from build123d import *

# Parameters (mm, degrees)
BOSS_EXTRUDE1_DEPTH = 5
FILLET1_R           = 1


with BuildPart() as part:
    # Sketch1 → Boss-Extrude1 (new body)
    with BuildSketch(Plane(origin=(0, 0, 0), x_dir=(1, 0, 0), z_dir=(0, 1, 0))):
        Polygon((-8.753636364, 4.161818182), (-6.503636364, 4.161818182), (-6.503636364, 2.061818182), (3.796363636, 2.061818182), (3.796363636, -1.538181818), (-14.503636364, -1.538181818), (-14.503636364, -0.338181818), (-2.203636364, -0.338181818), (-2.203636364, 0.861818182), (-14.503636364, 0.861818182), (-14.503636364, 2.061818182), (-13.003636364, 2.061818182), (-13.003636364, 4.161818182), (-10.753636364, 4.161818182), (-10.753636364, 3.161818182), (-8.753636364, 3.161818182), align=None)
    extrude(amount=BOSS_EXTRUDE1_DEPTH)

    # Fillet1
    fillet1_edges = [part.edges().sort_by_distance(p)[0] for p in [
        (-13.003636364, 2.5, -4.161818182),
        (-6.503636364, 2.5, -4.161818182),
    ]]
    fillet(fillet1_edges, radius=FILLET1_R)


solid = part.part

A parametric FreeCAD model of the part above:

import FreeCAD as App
import Part
import Sketcher
Q = App.Units.Quantity


def edges_at(feature, points):
    """Names of the edges that pass closest to the given points."""
    edges = feature.Shape.Edges
    near = lambda p: min(range(len(edges)), key=lambda i: edges[i].distToShape(Part.Vertex(*p))[0])
    return sorted({f"Edge{near(p) + 1}" for p in points})


def add_polygon(sketch, points):
    """Adds a closed chain of lines whose ends are joined by coincident constraints."""
    first, n = sketch.GeometryCount, len(points)
    for a, b in zip(points, points[1:] + points[:1]):
        sketch.addGeometry(Part.LineSegment(App.Vector(*a, 0), App.Vector(*b, 0)), False)
    for i in range(n):
        sketch.addConstraint(Sketcher.Constraint("Coincident", first + i, 2, first + (i + 1) % n, 1))

doc = App.newDocument("Part")
params = doc.addObject("Spreadsheet::Sheet", "Params")
for row, (alias, value) in enumerate([
    ("sketch1_width", "2 mm"),
    ("sketch1_height", "1 mm"),
    ("sketch1_width2", "1.5 mm"),
    ("sketch1_width3", "12.3 mm"),
    ("sketch1_width4", "18.3 mm"),
    ("pad1_length", "5 mm"),
    ("fillet_radius", "1 mm"),
], start=1):
    params.set(f"A{row}", alias)
    params.set(f"B{row}", "=" + value)
    params.setAlias(f"B{row}", alias)

body = doc.addObject("PartDesign::Body", "Body")

sketch1 = doc.addObject("Sketcher::SketchObject", "Sketch")
body.addObject(sketch1)
sketch1.AttachmentSupport = (doc.XZ_Plane, [""])
sketch1.MapMode = "FlatFace"
add_polygon(sketch1, [(-6.5, -4.2), (-8.8, -4.2), (-8.8, -3.2), (-10.8, -3.2), (-10.8, -4.2), (-13, -4.2), (-13, -2.1), (-14.5, -2.1), (-14.5, -0.9), (-2.2, -0.9), (-2.2, 0.3), (-14.5, 0.3), (-14.5, 1.5), (3.8, 1.5), (3.8, -2.1), (-6.5, -2.1)])
sketch1.addConstraint([
    Sketcher.Constraint("Horizontal", 0),
    Sketcher.Constraint("Vertical", 1),
    Sketcher.Constraint("Horizontal", 2),
    Sketcher.Constraint("Vertical", 3),
    Sketcher.Constraint("Horizontal", 4),
    Sketcher.Constraint("Vertical", 5),
    Sketcher.Constraint("Horizontal", 6),
    Sketcher.Constraint("Vertical", 7),
    Sketcher.Constraint("Horizontal", 8),
    Sketcher.Constraint("Vertical", 9),
    Sketcher.Constraint("Horizontal", 10),
    Sketcher.Constraint("Vertical", 11),
    Sketcher.Constraint("Horizontal", 12),
    Sketcher.Constraint("Vertical", 13),
    Sketcher.Constraint("Horizontal", 14),
    Sketcher.Constraint("Vertical", 15),
    Sketcher.Constraint("Horizontal", 0, 2, 3, 2),
    Sketcher.Constraint("Horizontal", 6, 2, 13, 2),
    Sketcher.Constraint("Vertical", 7, 2, 10, 2),
    Sketcher.Constraint("Equal", 0, 4),
    Sketcher.Constraint("Equal", 7, 9),
    Sketcher.Constraint("Equal", 9, 11),
    Sketcher.Constraint("DistanceX", 2, 2, 2, 1, Q("2 mm")),
    Sketcher.Constraint("DistanceY", 1, 1, 1, 2, Q("1 mm")),
    Sketcher.Constraint("DistanceX", 6, 2, 6, 1, Q("1.5 mm")),
    Sketcher.Constraint("DistanceX", 8, 1, 8, 2, Q("12.3 mm")),
    Sketcher.Constraint("DistanceX", 12, 1, 12, 2, Q("18.3 mm")),
    Sketcher.Constraint("DistanceX", 14, 2, 14, 1, Q("10.3 mm")),
    Sketcher.Constraint("DistanceY", 5, 1, 5, 2, Q("2.1 mm")),
    Sketcher.Constraint("DistanceY", 7, 1, 7, 2, Q("1.2 mm")),
    Sketcher.Constraint("DistanceY", 0, 2, -1, 1, Q("4.161818 mm")),
    Sketcher.Constraint("DistanceX", 0, 2, -1, 1, Q("8.753636 mm")),
])
sketch1.setExpression("Constraints[38]", "Params.sketch1_width")
sketch1.setExpression("Constraints[39]", "Params.sketch1_height")
sketch1.setExpression("Constraints[40]", "Params.sketch1_width2")
sketch1.setExpression("Constraints[41]", "Params.sketch1_width3")
sketch1.setExpression("Constraints[42]", "Params.sketch1_width4")
pad1 = doc.addObject("PartDesign::Pad", "Pad")
body.addObject(pad1)
pad1.Profile = sketch1
pad1.setExpression("Length", "Params.pad1_length")
pad1.Reversed = True
doc.recompute()

fillet = doc.addObject("PartDesign::Fillet", "Fillet")
body.addObject(fillet)
fillet.Base = (pad1, edges_at(pad1, [(-13.004, 2.5, -4.162), (-6.504, 2.5, -4.162)]))
fillet.setExpression("Radius", "Params.fillet_radius")

doc.recompute()
